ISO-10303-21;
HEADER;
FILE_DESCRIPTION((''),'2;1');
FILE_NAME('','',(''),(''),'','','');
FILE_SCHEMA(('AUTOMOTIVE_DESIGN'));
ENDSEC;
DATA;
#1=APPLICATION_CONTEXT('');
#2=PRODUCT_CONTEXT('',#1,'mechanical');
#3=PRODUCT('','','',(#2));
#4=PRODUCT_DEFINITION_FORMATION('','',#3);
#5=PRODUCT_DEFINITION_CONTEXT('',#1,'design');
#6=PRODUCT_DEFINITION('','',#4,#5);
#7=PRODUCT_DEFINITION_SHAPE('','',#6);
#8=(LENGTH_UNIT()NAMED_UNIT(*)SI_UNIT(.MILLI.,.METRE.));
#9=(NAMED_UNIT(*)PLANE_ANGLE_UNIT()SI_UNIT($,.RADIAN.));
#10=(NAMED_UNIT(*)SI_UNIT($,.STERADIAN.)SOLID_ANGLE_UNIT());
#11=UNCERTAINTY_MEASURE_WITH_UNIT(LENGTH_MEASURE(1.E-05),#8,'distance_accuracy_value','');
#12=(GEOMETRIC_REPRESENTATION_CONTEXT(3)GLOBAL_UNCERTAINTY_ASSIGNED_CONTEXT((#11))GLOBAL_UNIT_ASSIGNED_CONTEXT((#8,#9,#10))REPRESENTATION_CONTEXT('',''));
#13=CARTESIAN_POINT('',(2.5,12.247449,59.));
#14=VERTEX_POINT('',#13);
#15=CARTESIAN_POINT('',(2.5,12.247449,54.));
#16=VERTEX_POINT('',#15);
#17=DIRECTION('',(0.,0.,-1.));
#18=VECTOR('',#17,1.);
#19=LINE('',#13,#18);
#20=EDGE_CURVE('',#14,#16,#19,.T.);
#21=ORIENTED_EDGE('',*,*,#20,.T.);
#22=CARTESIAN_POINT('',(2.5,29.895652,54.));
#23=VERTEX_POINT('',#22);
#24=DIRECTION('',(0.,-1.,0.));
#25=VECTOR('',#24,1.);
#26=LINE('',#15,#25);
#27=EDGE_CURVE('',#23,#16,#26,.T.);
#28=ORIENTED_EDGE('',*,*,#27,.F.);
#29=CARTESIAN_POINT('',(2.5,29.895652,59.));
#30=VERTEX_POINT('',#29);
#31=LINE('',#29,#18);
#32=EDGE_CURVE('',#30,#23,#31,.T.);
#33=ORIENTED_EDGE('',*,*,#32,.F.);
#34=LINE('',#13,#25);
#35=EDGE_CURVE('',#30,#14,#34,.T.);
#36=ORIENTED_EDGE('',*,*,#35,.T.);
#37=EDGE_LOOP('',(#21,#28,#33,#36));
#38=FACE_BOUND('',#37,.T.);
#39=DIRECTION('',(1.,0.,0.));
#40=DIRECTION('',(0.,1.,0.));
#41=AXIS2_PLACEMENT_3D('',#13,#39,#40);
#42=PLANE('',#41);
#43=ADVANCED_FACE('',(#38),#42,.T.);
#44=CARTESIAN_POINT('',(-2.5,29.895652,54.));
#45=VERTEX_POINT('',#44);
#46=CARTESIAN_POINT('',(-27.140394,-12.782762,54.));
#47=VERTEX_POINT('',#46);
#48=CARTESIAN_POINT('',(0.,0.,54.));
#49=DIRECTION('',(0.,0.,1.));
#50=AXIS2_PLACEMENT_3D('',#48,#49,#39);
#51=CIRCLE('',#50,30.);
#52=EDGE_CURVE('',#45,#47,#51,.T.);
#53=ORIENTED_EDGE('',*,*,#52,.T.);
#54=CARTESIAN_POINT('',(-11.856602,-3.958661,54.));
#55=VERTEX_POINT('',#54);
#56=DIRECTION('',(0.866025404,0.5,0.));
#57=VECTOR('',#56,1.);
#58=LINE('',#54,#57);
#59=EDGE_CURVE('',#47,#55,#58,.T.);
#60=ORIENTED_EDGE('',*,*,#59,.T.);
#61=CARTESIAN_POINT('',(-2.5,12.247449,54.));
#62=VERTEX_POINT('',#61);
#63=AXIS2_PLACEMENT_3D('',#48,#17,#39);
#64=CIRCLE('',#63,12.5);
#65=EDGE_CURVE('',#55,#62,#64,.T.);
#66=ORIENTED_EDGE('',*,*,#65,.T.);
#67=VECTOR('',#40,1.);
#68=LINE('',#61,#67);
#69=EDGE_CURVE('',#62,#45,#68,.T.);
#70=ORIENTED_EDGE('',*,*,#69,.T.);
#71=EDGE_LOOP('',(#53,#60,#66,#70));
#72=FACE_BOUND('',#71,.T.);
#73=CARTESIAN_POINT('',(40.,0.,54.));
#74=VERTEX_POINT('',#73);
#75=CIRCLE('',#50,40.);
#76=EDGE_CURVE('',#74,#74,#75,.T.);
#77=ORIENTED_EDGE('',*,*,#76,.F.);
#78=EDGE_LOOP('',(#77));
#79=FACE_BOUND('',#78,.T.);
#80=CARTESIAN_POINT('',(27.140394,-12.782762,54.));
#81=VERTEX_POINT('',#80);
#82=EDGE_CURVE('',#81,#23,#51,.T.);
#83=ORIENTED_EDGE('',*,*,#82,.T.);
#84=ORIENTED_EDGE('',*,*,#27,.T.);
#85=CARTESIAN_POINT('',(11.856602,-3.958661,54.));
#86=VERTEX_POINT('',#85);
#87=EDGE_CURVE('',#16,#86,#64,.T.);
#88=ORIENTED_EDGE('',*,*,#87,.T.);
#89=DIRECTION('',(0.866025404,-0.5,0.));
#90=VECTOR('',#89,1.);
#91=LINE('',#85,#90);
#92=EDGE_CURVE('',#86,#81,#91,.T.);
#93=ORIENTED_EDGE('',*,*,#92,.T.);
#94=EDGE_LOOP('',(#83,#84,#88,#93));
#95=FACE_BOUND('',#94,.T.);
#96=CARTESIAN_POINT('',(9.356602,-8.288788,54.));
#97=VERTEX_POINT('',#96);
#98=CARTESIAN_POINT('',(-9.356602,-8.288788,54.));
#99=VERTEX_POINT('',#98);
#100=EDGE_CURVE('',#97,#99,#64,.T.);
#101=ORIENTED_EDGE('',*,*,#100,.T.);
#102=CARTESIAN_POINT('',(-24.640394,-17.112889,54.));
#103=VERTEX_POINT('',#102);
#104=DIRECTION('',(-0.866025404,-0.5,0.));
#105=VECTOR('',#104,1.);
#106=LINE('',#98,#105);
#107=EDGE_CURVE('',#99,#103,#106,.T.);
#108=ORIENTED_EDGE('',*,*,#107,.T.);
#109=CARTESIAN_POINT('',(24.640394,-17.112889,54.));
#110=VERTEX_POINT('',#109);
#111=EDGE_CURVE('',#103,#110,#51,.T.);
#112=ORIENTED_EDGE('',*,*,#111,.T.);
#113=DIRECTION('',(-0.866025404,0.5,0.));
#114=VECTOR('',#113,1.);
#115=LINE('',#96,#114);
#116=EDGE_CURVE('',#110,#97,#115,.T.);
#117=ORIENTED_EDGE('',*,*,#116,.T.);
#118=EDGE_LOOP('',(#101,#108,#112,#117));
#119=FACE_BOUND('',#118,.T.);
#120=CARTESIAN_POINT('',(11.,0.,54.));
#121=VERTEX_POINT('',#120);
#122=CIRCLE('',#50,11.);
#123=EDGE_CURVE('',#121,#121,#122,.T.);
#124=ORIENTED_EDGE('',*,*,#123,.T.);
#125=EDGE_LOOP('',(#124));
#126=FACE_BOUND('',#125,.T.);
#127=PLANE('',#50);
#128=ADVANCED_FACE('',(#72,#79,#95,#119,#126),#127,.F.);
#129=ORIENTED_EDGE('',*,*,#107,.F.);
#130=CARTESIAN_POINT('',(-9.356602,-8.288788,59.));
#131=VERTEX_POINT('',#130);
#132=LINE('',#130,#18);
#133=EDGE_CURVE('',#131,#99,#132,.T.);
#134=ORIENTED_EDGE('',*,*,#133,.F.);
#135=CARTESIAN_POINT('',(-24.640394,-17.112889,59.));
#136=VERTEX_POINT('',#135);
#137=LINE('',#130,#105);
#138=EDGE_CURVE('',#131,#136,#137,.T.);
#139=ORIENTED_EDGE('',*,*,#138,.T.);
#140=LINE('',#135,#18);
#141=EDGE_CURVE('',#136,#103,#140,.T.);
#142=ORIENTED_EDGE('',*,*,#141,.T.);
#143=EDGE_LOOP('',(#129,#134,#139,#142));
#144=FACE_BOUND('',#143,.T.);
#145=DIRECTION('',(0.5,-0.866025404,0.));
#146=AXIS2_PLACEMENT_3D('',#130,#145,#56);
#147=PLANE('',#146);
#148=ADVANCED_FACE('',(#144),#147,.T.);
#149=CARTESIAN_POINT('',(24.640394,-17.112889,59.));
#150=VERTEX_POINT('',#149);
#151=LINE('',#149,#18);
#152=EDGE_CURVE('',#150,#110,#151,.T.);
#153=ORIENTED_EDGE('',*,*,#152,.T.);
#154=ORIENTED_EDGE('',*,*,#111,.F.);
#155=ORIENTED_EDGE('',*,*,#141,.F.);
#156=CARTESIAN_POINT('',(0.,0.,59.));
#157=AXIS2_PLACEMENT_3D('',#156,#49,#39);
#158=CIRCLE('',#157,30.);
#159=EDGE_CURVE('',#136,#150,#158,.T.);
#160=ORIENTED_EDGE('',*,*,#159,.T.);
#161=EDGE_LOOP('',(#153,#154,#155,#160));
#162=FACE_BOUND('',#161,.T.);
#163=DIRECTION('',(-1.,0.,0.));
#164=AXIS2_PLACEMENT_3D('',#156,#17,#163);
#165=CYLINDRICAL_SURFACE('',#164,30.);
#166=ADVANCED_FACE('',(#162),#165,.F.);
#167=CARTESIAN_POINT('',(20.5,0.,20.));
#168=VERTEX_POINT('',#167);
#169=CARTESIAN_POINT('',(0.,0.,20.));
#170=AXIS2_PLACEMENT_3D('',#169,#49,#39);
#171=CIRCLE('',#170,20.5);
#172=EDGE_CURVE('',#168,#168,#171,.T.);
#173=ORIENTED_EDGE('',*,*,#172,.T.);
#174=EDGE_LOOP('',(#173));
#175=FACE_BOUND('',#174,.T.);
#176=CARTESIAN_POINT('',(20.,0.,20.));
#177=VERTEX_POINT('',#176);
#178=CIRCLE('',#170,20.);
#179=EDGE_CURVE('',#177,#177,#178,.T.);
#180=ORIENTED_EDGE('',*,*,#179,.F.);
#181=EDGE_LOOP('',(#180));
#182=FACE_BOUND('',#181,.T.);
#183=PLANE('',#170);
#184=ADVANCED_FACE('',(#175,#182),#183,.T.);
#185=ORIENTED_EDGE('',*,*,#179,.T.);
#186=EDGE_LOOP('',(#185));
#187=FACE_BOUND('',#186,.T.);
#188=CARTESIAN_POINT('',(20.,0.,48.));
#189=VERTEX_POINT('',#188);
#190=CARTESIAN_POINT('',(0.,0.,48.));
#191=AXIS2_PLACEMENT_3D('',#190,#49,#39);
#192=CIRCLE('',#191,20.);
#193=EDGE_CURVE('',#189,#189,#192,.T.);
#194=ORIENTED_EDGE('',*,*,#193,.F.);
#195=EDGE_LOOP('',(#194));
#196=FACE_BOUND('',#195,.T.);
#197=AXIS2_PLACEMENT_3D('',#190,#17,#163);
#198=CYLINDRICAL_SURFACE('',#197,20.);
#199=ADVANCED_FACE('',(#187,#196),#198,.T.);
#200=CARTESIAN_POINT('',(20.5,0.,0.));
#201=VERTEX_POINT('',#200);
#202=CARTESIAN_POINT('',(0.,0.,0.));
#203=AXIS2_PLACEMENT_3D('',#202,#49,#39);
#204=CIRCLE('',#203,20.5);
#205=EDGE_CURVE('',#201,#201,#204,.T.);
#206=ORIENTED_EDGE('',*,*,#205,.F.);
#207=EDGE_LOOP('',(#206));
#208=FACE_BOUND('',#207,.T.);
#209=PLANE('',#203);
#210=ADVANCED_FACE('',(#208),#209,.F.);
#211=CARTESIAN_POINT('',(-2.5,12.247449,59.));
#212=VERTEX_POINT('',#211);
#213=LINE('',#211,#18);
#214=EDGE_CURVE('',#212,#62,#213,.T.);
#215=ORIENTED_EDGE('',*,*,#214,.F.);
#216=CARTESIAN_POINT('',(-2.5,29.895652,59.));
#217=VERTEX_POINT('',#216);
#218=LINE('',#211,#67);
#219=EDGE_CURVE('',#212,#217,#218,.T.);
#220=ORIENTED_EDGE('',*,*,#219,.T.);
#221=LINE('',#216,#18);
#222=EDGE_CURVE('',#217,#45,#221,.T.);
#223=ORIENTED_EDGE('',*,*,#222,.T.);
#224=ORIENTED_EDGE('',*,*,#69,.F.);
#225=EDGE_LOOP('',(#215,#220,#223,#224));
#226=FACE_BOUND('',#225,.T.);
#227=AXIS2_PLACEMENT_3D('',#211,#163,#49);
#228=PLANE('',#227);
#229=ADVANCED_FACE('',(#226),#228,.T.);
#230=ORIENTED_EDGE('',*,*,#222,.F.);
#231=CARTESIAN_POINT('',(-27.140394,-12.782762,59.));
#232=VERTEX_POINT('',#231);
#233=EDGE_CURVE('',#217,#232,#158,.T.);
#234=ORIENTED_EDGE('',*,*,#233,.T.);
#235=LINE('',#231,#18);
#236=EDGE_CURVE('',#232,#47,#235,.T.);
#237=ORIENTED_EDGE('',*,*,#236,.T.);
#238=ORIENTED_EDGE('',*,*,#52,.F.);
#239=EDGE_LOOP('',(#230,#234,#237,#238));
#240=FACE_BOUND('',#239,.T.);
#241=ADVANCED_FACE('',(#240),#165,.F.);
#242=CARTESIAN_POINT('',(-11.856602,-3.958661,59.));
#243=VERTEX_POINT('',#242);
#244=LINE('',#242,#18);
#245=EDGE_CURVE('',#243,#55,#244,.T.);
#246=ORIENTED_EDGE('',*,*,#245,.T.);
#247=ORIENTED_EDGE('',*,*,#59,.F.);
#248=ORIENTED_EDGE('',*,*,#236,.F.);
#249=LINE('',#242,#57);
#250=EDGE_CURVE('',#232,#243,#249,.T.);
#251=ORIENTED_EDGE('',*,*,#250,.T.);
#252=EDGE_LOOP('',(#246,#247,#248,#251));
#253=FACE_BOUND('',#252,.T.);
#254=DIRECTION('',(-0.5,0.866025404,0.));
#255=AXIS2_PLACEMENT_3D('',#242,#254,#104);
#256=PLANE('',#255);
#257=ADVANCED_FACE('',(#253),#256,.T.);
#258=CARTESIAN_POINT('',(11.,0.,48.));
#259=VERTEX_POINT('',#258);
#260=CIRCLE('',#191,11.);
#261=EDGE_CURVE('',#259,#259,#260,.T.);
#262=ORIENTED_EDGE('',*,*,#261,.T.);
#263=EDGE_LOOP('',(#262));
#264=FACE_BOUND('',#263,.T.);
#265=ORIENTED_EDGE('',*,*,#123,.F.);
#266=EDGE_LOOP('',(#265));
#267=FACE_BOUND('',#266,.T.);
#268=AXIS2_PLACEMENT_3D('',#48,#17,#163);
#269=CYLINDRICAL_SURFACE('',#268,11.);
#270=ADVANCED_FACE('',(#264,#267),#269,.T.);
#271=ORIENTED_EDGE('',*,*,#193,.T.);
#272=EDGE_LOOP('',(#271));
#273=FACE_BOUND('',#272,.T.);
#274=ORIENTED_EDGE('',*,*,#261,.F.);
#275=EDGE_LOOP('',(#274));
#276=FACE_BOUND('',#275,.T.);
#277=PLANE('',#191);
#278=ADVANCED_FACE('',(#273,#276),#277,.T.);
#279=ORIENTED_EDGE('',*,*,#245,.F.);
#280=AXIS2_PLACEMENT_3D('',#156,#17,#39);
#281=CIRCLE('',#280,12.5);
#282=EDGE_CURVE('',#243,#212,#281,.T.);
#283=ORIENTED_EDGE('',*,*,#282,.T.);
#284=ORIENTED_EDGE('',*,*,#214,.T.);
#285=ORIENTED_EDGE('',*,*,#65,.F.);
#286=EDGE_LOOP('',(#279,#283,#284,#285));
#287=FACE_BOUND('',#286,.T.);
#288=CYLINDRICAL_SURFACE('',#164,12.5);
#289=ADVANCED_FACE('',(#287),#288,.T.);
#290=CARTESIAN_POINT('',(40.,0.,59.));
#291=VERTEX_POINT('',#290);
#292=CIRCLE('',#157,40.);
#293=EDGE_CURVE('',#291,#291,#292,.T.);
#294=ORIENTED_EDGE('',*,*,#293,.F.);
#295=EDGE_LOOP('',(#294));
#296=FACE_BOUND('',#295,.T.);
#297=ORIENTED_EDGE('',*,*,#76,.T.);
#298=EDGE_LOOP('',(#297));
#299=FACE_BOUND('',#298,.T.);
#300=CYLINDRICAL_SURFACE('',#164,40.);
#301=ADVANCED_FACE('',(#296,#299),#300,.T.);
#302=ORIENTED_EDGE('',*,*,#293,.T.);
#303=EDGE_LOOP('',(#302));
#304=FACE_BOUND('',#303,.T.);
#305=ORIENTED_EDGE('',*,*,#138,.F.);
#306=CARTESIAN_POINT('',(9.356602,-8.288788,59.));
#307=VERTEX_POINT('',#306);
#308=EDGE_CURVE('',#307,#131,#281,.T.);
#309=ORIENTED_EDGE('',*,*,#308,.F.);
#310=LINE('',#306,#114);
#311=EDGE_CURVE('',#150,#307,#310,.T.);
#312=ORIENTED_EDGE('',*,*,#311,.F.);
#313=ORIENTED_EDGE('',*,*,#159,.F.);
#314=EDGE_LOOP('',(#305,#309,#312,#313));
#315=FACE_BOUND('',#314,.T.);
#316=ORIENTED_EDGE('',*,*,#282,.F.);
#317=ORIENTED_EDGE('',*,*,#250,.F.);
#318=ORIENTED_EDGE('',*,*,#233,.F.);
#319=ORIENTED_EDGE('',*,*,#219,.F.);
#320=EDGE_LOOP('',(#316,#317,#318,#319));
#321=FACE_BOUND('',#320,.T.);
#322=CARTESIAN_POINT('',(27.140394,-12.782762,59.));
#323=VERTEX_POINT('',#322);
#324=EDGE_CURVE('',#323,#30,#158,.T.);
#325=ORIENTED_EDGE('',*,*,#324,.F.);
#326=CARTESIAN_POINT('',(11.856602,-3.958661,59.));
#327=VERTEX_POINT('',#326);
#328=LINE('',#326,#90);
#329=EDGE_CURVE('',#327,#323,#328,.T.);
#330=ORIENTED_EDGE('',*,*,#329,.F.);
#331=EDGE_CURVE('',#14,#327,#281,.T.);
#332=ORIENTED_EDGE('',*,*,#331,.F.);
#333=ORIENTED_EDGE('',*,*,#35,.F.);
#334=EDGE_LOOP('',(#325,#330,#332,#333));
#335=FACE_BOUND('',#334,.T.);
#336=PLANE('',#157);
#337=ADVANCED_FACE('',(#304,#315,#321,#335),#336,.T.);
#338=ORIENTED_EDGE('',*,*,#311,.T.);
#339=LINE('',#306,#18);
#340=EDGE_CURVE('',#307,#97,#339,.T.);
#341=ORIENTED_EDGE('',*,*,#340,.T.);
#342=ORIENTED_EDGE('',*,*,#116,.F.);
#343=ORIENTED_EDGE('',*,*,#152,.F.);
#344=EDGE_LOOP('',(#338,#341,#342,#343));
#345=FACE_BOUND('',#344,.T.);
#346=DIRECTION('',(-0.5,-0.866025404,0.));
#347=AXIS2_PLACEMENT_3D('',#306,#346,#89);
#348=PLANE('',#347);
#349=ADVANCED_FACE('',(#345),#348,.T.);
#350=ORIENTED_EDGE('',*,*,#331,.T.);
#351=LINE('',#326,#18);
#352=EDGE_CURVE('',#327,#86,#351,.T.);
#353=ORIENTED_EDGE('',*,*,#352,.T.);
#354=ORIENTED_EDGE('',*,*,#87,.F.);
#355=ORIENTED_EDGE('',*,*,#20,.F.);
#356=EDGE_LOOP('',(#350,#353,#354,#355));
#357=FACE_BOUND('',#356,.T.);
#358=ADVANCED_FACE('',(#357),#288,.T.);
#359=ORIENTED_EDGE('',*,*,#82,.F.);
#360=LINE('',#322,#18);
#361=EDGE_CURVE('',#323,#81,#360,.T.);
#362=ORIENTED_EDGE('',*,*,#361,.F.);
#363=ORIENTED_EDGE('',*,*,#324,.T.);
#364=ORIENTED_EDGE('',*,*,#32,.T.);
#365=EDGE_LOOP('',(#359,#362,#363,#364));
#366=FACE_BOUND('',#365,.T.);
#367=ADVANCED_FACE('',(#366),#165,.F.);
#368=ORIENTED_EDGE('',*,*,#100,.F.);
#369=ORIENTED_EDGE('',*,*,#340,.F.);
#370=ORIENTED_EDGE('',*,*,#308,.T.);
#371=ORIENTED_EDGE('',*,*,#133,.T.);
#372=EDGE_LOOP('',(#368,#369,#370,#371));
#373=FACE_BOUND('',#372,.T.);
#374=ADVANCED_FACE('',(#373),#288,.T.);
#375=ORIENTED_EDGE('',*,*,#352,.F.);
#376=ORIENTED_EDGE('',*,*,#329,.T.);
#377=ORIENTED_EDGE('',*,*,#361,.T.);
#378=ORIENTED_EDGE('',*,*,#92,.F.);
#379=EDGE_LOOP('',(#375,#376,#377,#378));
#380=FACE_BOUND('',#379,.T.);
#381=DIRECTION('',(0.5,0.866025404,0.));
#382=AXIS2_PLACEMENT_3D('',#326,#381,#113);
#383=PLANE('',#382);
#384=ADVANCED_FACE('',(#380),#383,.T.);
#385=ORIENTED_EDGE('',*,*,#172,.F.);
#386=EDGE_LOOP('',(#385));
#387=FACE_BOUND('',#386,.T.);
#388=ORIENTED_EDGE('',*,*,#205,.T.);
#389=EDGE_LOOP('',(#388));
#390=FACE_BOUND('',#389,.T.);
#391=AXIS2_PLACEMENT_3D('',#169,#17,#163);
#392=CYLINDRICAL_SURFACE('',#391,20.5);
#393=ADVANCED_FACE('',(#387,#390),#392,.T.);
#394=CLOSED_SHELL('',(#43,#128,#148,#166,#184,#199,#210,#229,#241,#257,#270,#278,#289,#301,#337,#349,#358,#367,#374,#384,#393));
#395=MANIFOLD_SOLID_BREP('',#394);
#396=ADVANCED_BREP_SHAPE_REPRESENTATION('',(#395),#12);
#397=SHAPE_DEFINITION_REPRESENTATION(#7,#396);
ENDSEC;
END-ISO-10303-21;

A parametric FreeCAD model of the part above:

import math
import FreeCAD as App
import Part
import Sketcher
Q = App.Units.Quantity

doc = App.newDocument("Part")
params = doc.addObject("Spreadsheet::Sheet", "Params")
for row, (alias, value) in enumerate([
    ("sketch1_diameter", "41 mm"),
    ("pad1_length", "20 mm"),
    ("sketch2_diameter", "40 mm"),
    ("pad2_length", "28 mm"),
    ("sketch3_diameter", "22 mm"),
    ("pad3_length", "6 mm"),
    ("sketch4_diameter", "80 mm"),
    ("sketch4_radius", "30 mm"),
    ("sketch4_radius2", "12.5 mm"),
    ("pad4_length", "5 mm"),
], start=1):
    params.set(f"A{row}", alias)
    params.set(f"B{row}", "=" + value)
    params.setAlias(f"B{row}", alias)

body = doc.addObject("PartDesign::Body", "Body")

sketch1 = doc.addObject("Sketcher::SketchObject", "Sketch")
body.addObject(sketch1)
sketch1.AttachmentSupport = (doc.XY_Plane, [""])
sketch1.MapMode = "FlatFace"
sketch1.addGeometry(Part.Circle(App.Vector(0, 0, 0), App.Vector(0, 0, 1), 20.5), False)
sketch1.addConstraint(Sketcher.Constraint("Coincident", 0, 3, -1, 1))
sketch1.addConstraint(Sketcher.Constraint("Diameter", 0, Q("41 mm")))
sketch1.setExpression("Constraints[1]", "Params.sketch1_diameter")
pad1 = doc.addObject("PartDesign::Pad", "Pad")
body.addObject(pad1)
pad1.Profile = sketch1
pad1.setExpression("Length", "Params.pad1_length")

sketch2 = doc.addObject("Sketcher::SketchObject", "Sketch001")
body.addObject(sketch2)
sketch2.AttachmentSupport = (doc.XY_Plane, [""])
sketch2.MapMode = "FlatFace"
sketch2.AttachmentOffset = App.Placement(App.Vector(0, 0, 20), App.Rotation())
sketch2.addGeometry(Part.Circle(App.Vector(0, 0, 0), App.Vector(0, 0, 1), 20), False)
sketch2.addConstraint(Sketcher.Constraint("Coincident", 0, 3, -1, 1))
sketch2.addConstraint(Sketcher.Constraint("Diameter", 0, Q("40 mm")))
sketch2.setExpression("Constraints[1]", "Params.sketch2_diameter")
pad2 = doc.addObject("PartDesign::Pad", "Pad001")
body.addObject(pad2)
pad2.Profile = sketch2
pad2.setExpression("Length", "Params.pad2_length")

sketch3 = doc.addObject("Sketcher::SketchObject", "Sketch002")
body.addObject(sketch3)
sketch3.AttachmentSupport = (doc.XY_Plane, [""])
sketch3.MapMode = "FlatFace"
sketch3.AttachmentOffset = App.Placement(App.Vector(0, 0, 48), App.Rotation())
sketch3.addGeometry(Part.Circle(App.Vector(0, 0, 0), App.Vector(0, 0, 1), 11), False)
sketch3.addConstraint(Sketcher.Constraint("Coincident", 0, 3, -1, 1))
sketch3.addConstraint(Sketcher.Constraint("Diameter", 0, Q("22 mm")))
sketch3.setExpression("Constraints[1]", "Params.sketch3_diameter")
pad3 = doc.addObject("PartDesign::Pad", "Pad002")
body.addObject(pad3)
pad3.Profile = sketch3
pad3.setExpression("Length", "Params.pad3_length")

sketch4 = doc.addObject("Sketcher::SketchObject", "Sketch003")
body.addObject(sketch4)
sketch4.AttachmentSupport = (doc.XY_Plane, [""])
sketch4.MapMode = "FlatFace"
sketch4.AttachmentOffset = App.Placement(App.Vector(0, 0, 54), App.Rotation())
sketch4.addGeometry(Part.Circle(App.Vector(0, 0, 0), App.Vector(0, 0, 1), 40), False)
sketch4.addGeometry(Part.ArcOfCircle(Part.Circle(App.Vector(0, 0, 0), App.Vector(0, 0, 1), 12.5), math.radians(-138.463041), math.radians(-41.536959)), False)
sketch4.addGeometry(Part.LineSegment(App.Vector(9.356602, -8.288788, 0), App.Vector(24.640394, -17.112889, 0)), False)
sketch4.addGeometry(Part.ArcOfCircle(Part.Circle(App.Vector(0, 0, 0), App.Vector(0, 0, 1), 30), math.radians(-145.219808), math.radians(-34.780192)), False)
sketch4.addGeometry(Part.LineSegment(App.Vector(-24.640394, -17.112889, 0), App.Vector(-9.356602, -8.288788, 0)), False)
sketch4.addGeometry(Part.LineSegment(App.Vector(-2.5, 29.895652, 0), App.Vector(-2.5, 12.247449, 0)), False)
sketch4.addGeometry(Part.ArcOfCircle(Part.Circle(App.Vector(0, 0, 0), App.Vector(0, 0, 1), 12.5), math.radians(101.536959), math.radians(198.463041)), False)
sketch4.addGeometry(Part.LineSegment(App.Vector(-11.856602, -3.958661, 0), App.Vector(-27.140394, -12.782762, 0)), False)
sketch4.addGeometry(Part.ArcOfCircle(Part.Circle(App.Vector(0, 0, 0), App.Vector(0, 0, 1), 30), math.radians(94.780192), math.radians(205.219808)), False)
sketch4.addGeometry(Part.LineSegment(App.Vector(27.140394, -12.782762, 0), App.Vector(11.856602, -3.958661, 0)), False)
sketch4.addGeometry(Part.ArcOfCircle(Part.Circle(App.Vector(0, 0, 0), App.Vector(0, 0, 1), 12.5), math.radians(-18.463041), math.radians(78.463041)), False)
sketch4.addGeometry(Part.LineSegment(App.Vector(2.5, 12.247449, 0), App.Vector(2.5, 29.895652, 0)), False)
sketch4.addGeometry(Part.ArcOfCircle(Part.Circle(App.Vector(0, 0, 0), App.Vector(0, 0, 1), 30), math.radians(-25.219808), math.radians(85.219808)), False)
sketch4.addConstraint(Sketcher.Constraint("Coincident", 1, 2, 2, 1))
sketch4.addConstraint(Sketcher.Constraint("Coincident", 2, 2, 3, 2))
sketch4.addConstraint(Sketcher.Constraint("Coincident", 3, 1, 4, 1))
sketch4.addConstraint(Sketcher.Constraint("Coincident", 4, 2, 1, 1))
sketch4.addConstraint(Sketcher.Constraint("Coincident", 5, 2, 6, 1))
sketch4.addConstraint(Sketcher.Constraint("Coincident", 6, 2, 7, 1))
sketch4.addConstraint(Sketcher.Constraint("Coincident", 7, 2, 8, 2))
sketch4.addConstraint(Sketcher.Constraint("Coincident", 8, 1, 5, 1))
sketch4.addConstraint(Sketcher.Constraint("Coincident", 9, 2, 10, 1))
sketch4.addConstraint(Sketcher.Constraint("Coincident", 10, 2, 11, 1))
sketch4.addConstraint(Sketcher.Constraint("Coincident", 11, 2, 12, 2))
sketch4.addConstraint(Sketcher.Constraint("Coincident", 12, 1, 9, 1))
sketch4.addConstraint(Sketcher.Constraint("Vertical", 5))
sketch4.addConstraint(Sketcher.Constraint("Vertical", 11))
sketch4.addConstraint(Sketcher.Constraint("Coincident", 0, 3, -1, 1))
sketch4.addConstraint(Sketcher.Constraint("Coincident", 1, 3, -1, 1))
sketch4.addConstraint(Sketcher.Constraint("Coincident", 3, 3, -1, 1))
sketch4.addConstraint(Sketcher.Constraint("Coincident", 6, 3, -1, 1))
sketch4.addConstraint(Sketcher.Constraint("Coincident", 8, 3, -1, 1))
sketch4.addConstraint(Sketcher.Constraint("Coincident", 10, 3, -1, 1))
sketch4.addConstraint(Sketcher.Constraint("Coincident", 12, 3, -1, 1))
sketch4.addConstraint(Sketcher.Constraint("Equal", 1, 6))
sketch4.addConstraint(Sketcher.Constraint("Equal", 3, 8))
sketch4.addConstraint(Sketcher.Constraint("Equal", 6, 10))
sketch4.addConstraint(Sketcher.Constraint("Equal", 8, 12))
sketch4.addConstraint(Sketcher.Constraint("Parallel", 4, 7))
sketch4.addConstraint(Sketcher.Constraint("Parallel", 2, 9))
sketch4.addConstraint(Sketcher.Constraint("Horizontal", 2, 2, 3, 1))
sketch4.addConstraint(Sketcher.Constraint("Horizontal", 1, 2, 4, 2))
sketch4.addConstraint(Sketcher.Constraint("Horizontal", 6, 2, 9, 2))
sketch4.addConstraint(Sketcher.Constraint("Horizontal", 5, 2, 10, 2))
sketch4.addConstraint(Sketcher.Constraint("Equal", 4, 7))
sketch4.addConstraint(Sketcher.Constraint("Diameter", 0, Q("80 mm")))
sketch4.addConstraint(Sketcher.Constraint("Radius", 3, Q("30 mm")))
sketch4.addConstraint(Sketcher.Constraint("Radius", 1, Q("12.5 mm")))
sketch4.addConstraint(Sketcher.Constraint("Angle", 2, Q("-30 deg")))
sketch4.addConstraint(Sketcher.Constraint("DistanceX", 5, 2, 10, 2, Q("5 mm")))
sketch4.addConstraint(Sketcher.Constraint("DistanceX", 6, 2, 4, 2, Q("2.5 mm")))
sketch4.setExpression("Constraints[32]", "Params.sketch4_diameter")
sketch4.setExpression("Constraints[33]", "Params.sketch4_radius")
sketch4.setExpression("Constraints[34]", "Params.sketch4_radius2")
pad4 = doc.addObject("PartDesign::Pad", "Pad003")
body.addObject(pad4)
pad4.Profile = sketch4
pad4.setExpression("Length", "Params.pad4_length")

doc.recompute()
